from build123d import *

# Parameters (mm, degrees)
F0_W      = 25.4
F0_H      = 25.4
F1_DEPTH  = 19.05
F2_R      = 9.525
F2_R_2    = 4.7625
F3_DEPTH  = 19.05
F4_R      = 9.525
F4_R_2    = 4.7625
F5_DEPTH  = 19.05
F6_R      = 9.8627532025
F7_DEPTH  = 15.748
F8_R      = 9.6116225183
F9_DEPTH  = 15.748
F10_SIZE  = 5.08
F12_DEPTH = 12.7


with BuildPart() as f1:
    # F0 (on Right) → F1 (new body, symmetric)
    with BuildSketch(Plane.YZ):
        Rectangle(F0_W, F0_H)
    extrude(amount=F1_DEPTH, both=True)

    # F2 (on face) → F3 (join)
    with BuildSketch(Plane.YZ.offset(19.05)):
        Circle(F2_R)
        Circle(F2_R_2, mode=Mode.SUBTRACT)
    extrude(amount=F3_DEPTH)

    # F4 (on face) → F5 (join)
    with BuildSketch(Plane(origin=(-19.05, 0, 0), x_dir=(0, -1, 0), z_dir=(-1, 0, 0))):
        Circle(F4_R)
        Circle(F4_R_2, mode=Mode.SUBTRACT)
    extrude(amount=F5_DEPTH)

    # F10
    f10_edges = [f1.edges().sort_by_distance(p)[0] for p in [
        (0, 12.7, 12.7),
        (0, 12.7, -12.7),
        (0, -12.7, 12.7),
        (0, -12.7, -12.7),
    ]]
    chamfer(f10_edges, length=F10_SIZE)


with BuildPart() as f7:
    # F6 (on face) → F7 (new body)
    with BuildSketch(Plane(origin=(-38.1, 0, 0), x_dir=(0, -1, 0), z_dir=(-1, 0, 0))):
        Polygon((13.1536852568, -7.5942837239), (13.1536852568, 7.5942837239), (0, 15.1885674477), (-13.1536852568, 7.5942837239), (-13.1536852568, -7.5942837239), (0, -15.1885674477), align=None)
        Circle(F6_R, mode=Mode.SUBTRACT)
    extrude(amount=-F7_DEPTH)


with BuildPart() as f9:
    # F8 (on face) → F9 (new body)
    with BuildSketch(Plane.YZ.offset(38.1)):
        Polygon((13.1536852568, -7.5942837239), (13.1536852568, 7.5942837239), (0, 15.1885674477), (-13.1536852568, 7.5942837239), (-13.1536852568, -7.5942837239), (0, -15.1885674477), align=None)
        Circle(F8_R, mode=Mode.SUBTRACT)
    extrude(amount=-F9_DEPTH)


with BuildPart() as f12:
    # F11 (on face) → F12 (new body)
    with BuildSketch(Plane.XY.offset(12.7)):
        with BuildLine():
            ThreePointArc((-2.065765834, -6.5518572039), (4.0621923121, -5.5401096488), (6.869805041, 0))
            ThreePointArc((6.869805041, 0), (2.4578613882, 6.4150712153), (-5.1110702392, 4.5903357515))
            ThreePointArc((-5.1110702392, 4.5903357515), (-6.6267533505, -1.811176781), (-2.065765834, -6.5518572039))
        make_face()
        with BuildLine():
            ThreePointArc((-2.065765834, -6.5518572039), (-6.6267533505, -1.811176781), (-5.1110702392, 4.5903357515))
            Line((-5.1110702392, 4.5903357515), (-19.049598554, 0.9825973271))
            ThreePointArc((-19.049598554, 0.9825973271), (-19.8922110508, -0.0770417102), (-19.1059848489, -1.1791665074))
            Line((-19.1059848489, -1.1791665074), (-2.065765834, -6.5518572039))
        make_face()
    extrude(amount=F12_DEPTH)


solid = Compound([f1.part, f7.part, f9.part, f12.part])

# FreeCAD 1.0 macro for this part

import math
import FreeCAD as App
import Part
import Sketcher

V = App.Vector
Q = App.Units.Quantity


def edges_at(feature, points):
    """Names of the edges that pass closest to the given points."""
    edges = feature.Shape.Edges
    near = lambda p: min(range(len(edges)), key=lambda i: edges[i].distToShape(Part.Vertex(*p))[0])
    return sorted({f"Edge{near(p) + 1}" for p in points})


def add_polygon(sketch, points):
    """Adds a closed chain of lines whose ends are joined by coincident constraints."""
    first, n = sketch.GeometryCount, len(points)
    for a, b in zip(points, points[1:] + points[:1]):
        sketch.addGeometry(Part.LineSegment(App.Vector(*a, 0), App.Vector(*b, 0)), False)
    for i in range(n):
        sketch.addConstraint(Sketcher.Constraint("Coincident", first + i, 2, first + (i + 1) % n, 1))

doc = App.newDocument("Part")
body = doc.addObject("PartDesign::Body", "Body")

# Sketch on YZ plane
sketch1 = doc.addObject("Sketcher::SketchObject", "Sketch")
body.addObject(sketch1)
sketch1.AttachmentSupport = (doc.YZ_Plane, [""])
sketch1.MapMode = "FlatFace"
add_polygon(sketch1, [(-12.7, 12.7), (-12.7, -12.7), (12.7, -12.7), (12.7, 12.7)])  # lines 0-3
sketch1.addConstraint(Sketcher.Constraint("Vertical", 0))
sketch1.addConstraint(Sketcher.Constraint("Horizontal", 1))
sketch1.addConstraint(Sketcher.Constraint("Vertical", 2))
sketch1.addConstraint(Sketcher.Constraint("Horizontal", 3))
sketch1.addConstraint(Sketcher.Constraint("Symmetric", 0, 2, 2, 2, -1, 1))
sketch1.addConstraint(Sketcher.Constraint("Equal", 3, 0))
sketch1.addConstraint(Sketcher.Constraint("DistanceX", 1, 1, 1, 2, Q("1 in")))
pad1 = doc.addObject("PartDesign::Pad", "Pad")
body.addObject(pad1)
pad1.Profile = sketch1
pad1.Length = Q("1.5 in")
pad1.Midplane = True

# Sketch on YZ plane
sketch2 = doc.addObject("Sketcher::SketchObject", "Sketch001")
body.addObject(sketch2)
sketch2.AttachmentSupport = (doc.YZ_Plane, [""])
sketch2.MapMode = "FlatFace"
sketch2.AttachmentOffset = App.Placement(V(0, 0, 0.75 * 25.4), App.Rotation())
sketch2.addGeometry(Part.Circle(V(0, 0, 0), V(0, 0, 1), 9.525), False)
sketch2.addGeometry(Part.Circle(V(0, 0, 0), V(0, 0, 1), 4.7625), False)
sketch2.addConstraint(Sketcher.Constraint("Coincident", 0, 3, -1, 1))
sketch2.addConstraint(Sketcher.Constraint("Coincident", 1, 3, -1, 1))
sketch2.addConstraint(Sketcher.Constraint("Diameter", 0, Q("0.75 in")))
sketch2.addConstraint(Sketcher.Constraint("Diameter", 1, Q("0.375 in")))
pad2 = doc.addObject("PartDesign::Pad", "Pad001")
body.addObject(pad2)
pad2.Profile = sketch2
pad2.Length = Q("0.75 in")

# Sketch on YZ plane
sketch3 = doc.addObject("Sketcher::SketchObject", "Sketch002")
body.addObject(sketch3)
sketch3.AttachmentSupport = (doc.YZ_Plane, [""])
sketch3.MapMode = "FlatFace"
sketch3.AttachmentOffset = App.Placement(V(0, 0, -0.75 * 25.4), App.Rotation())
sketch3.addGeometry(Part.Circle(V(0, 0, 0), V(0, 0, 1), 9.525), False)
sketch3.addGeometry(Part.Circle(V(0, 0, 0), V(0, 0, 1), 4.7625), False)
sketch3.addConstraint(Sketcher.Constraint("Coincident", 0, 3, -1, 1))
sketch3.addConstraint(Sketcher.Constraint("Coincident", 1, 3, -1, 1))
sketch3.addConstraint(Sketcher.Constraint("Diameter", 0, Q("0.75 in")))
sketch3.addConstraint(Sketcher.Constraint("Diameter", 1, Q("0.375 in")))
pad3 = doc.addObject("PartDesign::Pad", "Pad002")
body.addObject(pad3)
pad3.Profile = sketch3
pad3.Length = Q("0.75 in")
pad3.Reversed = True
doc.recompute()

chamfer = doc.addObject("PartDesign::Chamfer", "Chamfer")
body.addObject(chamfer)
chamfer.Base = (pad3, edges_at(pad3, [
    (0, 12.7, 12.7),
    (0, 12.7, -12.7),
    (0, -12.7, 12.7),
    (0, -12.7, -12.7),
]))
chamfer.Size = Q("0.2 in")
body2 = doc.addObject("PartDesign::Body", "Body001")

# Sketch on YZ plane
sketch4 = doc.addObject("Sketcher::SketchObject", "Sketch003")
body2.addObject(sketch4)
sketch4.AttachmentSupport = (doc.getObject("YZ_Plane001"), [""])
sketch4.MapMode = "FlatFace"
sketch4.AttachmentOffset = App.Placement(V(0, 0, -1.5 * 25.4), App.Rotation())
add_polygon(sketch4, [(-13.153685, -7.594284), (-13.153685, 7.594284), (0, 15.188567), (13.153685, 7.594284), (13.153685, -7.594284), (0, -15.188567)])  # lines 0-5
sketch4.addGeometry(Part.Circle(V(0, 0, 0), V(0, 0, 1), 9.862753), False)  # 6
sketch4.addConstraint(Sketcher.Constraint("Vertical", 0))
sketch4.addConstraint(Sketcher.Constraint("Vertical", 3))
sketch4.addConstraint(Sketcher.Constraint("Coincident", 6, 3, -1, 1))
sketch4.addConstraint(Sketcher.Constraint("Symmetric", 0, 2, 3, 2, -1, 1))
sketch4.addConstraint(Sketcher.Constraint("Symmetric", 1, 2, 4, 2, -1, 1))
sketch4.addConstraint(Sketcher.Constraint("PointOnObject", 1, 2, -2))
sketch4.addConstraint(Sketcher.Constraint("Parallel", 2, 5))
sketch4.addConstraint(Sketcher.Constraint("Horizontal", 0, 2, 2, 2))
sketch4.addConstraint(Sketcher.Constraint("Angle", 1, Q("30 deg")))
sketch4.addConstraint(Sketcher.Constraint("Diameter", 6, 19.725506))
sketch4.addConstraint(Sketcher.Constraint("DistanceY", 0, 1, 0, 2, 15.188567))
sketch4.addConstraint(Sketcher.Constraint("DistanceX", 0, 2, 2, 2, 26.307371))
pad4 = doc.addObject("PartDesign::Pad", "Pad003")
body2.addObject(pad4)
pad4.Profile = sketch4
pad4.Length = Q("0.62 in")
body3 = doc.addObject("PartDesign::Body", "Body002")

# Sketch on YZ plane
sketch5 = doc.addObject("Sketcher::SketchObject", "Sketch004")
body3.addObject(sketch5)
sketch5.AttachmentSupport = (doc.getObject("YZ_Plane002"), [""])
sketch5.MapMode = "FlatFace"
sketch5.AttachmentOffset = App.Placement(V(0, 0, 1.5 * 25.4), App.Rotation())
add_polygon(sketch5, [(13.153685, -7.594284), (13.153685, 7.594284), (0, 15.188567), (-13.153685, 7.594284), (-13.153685, -7.594284), (0, -15.188567)])  # lines 0-5
sketch5.addGeometry(Part.Circle(V(0, 0, 0), V(0, 0, 1), 9.611623), False)  # 6
sketch5.addConstraint(Sketcher.Constraint("Vertical", 0))
sketch5.addConstraint(Sketcher.Constraint("Vertical", 3))
sketch5.addConstraint(Sketcher.Constraint("Coincident", 6, 3, -1, 1))
sketch5.addConstraint(Sketcher.Constraint("Symmetric", 0, 2, 3, 2, -1, 1))
sketch5.addConstraint(Sketcher.Constraint("Symmetric", 1, 2, 4, 2, -1, 1))
sketch5.addConstraint(Sketcher.Constraint("PointOnObject", 1, 2, -2))
sketch5.addConstraint(Sketcher.Constraint("Parallel", 2, 5))
sketch5.addConstraint(Sketcher.Constraint("Horizontal", 0, 2, 2, 2))
sketch5.addConstraint(Sketcher.Constraint("Angle", 1, Q("150 deg")))
sketch5.addConstraint(Sketcher.Constraint("Diameter", 6, 19.223245))
sketch5.addConstraint(Sketcher.Constraint("DistanceY", 0, 1, 0, 2, 15.188567))
sketch5.addConstraint(Sketcher.Constraint("DistanceX", 2, 2, 0, 2, 26.307371))
pad5 = doc.addObject("PartDesign::Pad", "Pad004")
body3.addObject(pad5)
pad5.Profile = sketch5
pad5.Length = Q("0.62 in")
pad5.Reversed = True
body4 = doc.addObject("PartDesign::Body", "Body003")

# Sketch on XY plane
sketch6 = doc.addObject("Sketcher::SketchObject", "Sketch005")
body4.addObject(sketch6)
sketch6.AttachmentSupport = (doc.getObject("XY_Plane003"), [""])
sketch6.MapMode = "FlatFace"
sketch6.AttachmentOffset = App.Placement(V(0, 0, 0.5 * 25.4), App.Rotation())
sketch6.addGeometry(Part.ArcOfCircle(Part.Circle(V(0, 0, 0), V(0, 0, 1), 6.869805), math.radians(-107.499787), math.radians(0)), False)
sketch6.addGeometry(Part.ArcOfCircle(Part.Circle(V(0, 0, 0), V(0, 0, 1), 6.869805), math.radians(0), math.radians(138.072471)), False)
sketch6.addGeometry(Part.LineSegment(V(-5.11107, 4.590336, 0), V(-19.049599, 0.982597, 0)), False)
sketch6.addGeometry(Part.ArcOfCircle(Part.Circle(V(-18.767738, -0.106372, 0), V(0, 0, 1), 1.124855), math.radians(104.511519), math.radians(252.500213)), False)
sketch6.addGeometry(Part.LineSegment(V(-19.105985, -1.179167, 0), V(-2.065766, -6.551857, 0)), False)
sketch6.addConstraint(Sketcher.Constraint("Tangent", 0, 2, 1, 1))
sketch6.addConstraint(Sketcher.Constraint("Coincident", 1, 2, 2, 1))
sketch6.addConstraint(Sketcher.Constraint("Tangent", 2, 2, 3, 1))
sketch6.addConstraint(Sketcher.Constraint("Tangent", 3, 2, 4, 1))
sketch6.addConstraint(Sketcher.Constraint("Tangent", 4, 2, 0, 1))
sketch6.addConstraint(Sketcher.Constraint("Coincident", 0, 3, -1, 1))
sketch6.addConstraint(Sketcher.Constraint("Equal", 0, 1))
sketch6.addConstraint(Sketcher.Constraint("PointOnObject", 0, 2, -1))
sketch6.addConstraint(Sketcher.Constraint("Radius", 0, 6.869805))
sketch6.addConstraint(Sketcher.Constraint("Radius", 3, 1.124855))
sketch6.addConstraint(Sketcher.Constraint("DistanceX", 2, 2, -1, 1, 19.049599))
sketch6.addConstraint(Sketcher.Constraint("Distance", 2, 14.397859))
sketch6.addConstraint(Sketcher.Constraint("DistanceX", 3, 3, -1, 1, 18.767738))
pad6 = doc.addObject("PartDesign::Pad", "Pad005")
body4.addObject(pad6)
pad6.Profile = sketch6
pad6.Length = Q("0.5 in")

doc.recompute()
